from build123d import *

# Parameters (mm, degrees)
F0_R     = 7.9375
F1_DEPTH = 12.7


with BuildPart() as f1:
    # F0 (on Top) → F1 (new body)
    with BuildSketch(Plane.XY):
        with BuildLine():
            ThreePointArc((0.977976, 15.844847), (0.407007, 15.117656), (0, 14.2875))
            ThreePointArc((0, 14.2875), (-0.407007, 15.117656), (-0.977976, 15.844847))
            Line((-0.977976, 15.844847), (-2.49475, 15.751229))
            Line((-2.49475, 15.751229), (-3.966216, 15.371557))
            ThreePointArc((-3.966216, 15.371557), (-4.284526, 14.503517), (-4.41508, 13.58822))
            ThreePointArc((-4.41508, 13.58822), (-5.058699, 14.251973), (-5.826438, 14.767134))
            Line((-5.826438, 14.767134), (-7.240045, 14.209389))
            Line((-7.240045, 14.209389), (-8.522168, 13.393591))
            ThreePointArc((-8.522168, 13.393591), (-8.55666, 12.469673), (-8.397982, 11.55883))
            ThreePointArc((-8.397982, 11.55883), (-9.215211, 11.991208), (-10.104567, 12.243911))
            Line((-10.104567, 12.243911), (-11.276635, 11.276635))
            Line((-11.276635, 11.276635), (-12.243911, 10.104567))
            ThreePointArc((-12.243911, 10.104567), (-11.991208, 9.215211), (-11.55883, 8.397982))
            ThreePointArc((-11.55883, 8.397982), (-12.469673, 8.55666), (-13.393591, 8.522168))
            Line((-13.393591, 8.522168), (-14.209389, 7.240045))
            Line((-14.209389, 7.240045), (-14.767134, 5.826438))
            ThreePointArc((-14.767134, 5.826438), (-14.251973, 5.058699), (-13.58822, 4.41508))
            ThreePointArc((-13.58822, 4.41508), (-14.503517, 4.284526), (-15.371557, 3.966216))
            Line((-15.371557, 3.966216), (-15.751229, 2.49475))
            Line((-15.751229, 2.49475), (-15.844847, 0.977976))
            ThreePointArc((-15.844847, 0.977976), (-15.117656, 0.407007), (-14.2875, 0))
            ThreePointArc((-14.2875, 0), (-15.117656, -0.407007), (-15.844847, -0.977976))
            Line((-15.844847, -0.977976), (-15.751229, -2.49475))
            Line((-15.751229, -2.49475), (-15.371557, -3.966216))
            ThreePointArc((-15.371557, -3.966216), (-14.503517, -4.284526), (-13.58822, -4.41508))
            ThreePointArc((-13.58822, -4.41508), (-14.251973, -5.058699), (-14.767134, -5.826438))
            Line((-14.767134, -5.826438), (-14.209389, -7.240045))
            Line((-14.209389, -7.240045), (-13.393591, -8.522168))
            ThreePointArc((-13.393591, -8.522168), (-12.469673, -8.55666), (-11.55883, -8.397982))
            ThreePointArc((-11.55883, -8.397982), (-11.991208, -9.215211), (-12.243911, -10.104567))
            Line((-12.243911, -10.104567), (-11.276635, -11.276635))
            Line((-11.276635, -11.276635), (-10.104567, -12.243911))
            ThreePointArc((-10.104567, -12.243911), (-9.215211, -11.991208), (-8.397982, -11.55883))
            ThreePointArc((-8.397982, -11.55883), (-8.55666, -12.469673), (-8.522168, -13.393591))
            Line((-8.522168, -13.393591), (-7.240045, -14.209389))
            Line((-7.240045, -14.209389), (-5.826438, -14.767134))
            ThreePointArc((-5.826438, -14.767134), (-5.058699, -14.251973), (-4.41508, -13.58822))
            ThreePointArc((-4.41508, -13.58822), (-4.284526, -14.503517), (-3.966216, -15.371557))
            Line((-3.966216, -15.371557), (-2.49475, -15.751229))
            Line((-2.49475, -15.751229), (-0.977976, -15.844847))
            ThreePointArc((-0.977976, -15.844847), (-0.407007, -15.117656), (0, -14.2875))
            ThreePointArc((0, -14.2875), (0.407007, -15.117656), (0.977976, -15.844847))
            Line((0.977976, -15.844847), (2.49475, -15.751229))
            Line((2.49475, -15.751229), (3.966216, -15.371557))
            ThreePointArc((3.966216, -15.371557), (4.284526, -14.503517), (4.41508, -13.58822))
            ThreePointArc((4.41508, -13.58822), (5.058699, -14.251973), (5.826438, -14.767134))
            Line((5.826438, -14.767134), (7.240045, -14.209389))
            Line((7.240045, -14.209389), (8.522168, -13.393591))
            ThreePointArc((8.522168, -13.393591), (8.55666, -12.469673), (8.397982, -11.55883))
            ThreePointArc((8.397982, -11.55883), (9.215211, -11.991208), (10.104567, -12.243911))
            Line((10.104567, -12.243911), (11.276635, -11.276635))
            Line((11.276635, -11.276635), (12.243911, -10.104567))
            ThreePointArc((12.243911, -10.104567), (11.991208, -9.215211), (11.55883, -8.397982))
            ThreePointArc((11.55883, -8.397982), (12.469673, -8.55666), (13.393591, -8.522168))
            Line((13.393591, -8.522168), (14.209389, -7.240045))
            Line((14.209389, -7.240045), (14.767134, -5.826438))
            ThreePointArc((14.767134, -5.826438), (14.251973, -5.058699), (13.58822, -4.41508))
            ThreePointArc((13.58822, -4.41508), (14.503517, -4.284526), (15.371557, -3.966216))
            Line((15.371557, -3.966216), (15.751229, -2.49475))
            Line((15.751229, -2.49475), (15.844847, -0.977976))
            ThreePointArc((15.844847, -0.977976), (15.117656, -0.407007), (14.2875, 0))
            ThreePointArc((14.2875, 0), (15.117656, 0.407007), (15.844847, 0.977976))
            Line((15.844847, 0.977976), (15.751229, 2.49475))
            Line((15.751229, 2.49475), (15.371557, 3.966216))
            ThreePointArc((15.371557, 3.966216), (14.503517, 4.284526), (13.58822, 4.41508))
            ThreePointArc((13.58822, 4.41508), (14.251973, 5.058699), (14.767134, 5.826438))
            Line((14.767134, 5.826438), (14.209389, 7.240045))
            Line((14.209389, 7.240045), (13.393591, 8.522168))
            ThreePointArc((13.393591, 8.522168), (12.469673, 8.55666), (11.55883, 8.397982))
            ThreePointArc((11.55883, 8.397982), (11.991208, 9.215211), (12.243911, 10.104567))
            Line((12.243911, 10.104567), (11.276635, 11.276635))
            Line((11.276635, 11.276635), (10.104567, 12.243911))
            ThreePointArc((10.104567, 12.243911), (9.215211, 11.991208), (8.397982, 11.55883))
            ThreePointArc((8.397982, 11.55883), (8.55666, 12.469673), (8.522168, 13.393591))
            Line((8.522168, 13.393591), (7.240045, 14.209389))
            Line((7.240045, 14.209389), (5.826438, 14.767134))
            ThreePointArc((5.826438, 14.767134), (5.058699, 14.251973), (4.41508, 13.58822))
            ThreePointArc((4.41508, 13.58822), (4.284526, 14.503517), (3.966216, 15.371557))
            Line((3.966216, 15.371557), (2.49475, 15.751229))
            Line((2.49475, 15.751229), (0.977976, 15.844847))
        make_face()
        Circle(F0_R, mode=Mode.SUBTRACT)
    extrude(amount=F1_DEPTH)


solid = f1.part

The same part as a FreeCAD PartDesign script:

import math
import FreeCAD as App
import Part
import Sketcher

V = App.Vector
Q = App.Units.Quantity

doc = App.newDocument("Part")
body = doc.addObject("PartDesign::Body", "Body")

# Sketch on XY plane
sketch1 = doc.addObject("Sketcher::SketchObject", "Sketch")
body.addObject(sketch1)
sketch1.AttachmentSupport = (doc.XY_Plane, [""])
sketch1.MapMode = "FlatFace"
sketch1.addGeometry(Part.ArcOfCircle(Part.Circle(V(4.145994, 12.769662, 0), V(0, 0, 1), 4.415099), math.radians(135.851903), math.radians(159.892456)), False)
sketch1.addGeometry(Part.ArcOfCircle(Part.Circle(V(-4.145994, 12.769662, 0), V(0, 0, 1), 4.415099), math.radians(20.107544), math.radians(44.148097)), False)
sketch1.addGeometry(Part.LineSegment(V(-0.977976, 15.844847, 0), V(-2.49475, 15.751229, 0)), False)
sketch1.addGeometry(Part.LineSegment(V(-2.49475, 15.751229, 0), V(-3.966216, 15.371557, 0)), False)
sketch1.addGeometry(Part.ArcOfCircle(Part.Circle(V(-0.002976, 13.425856, 0), V(0, 0, 1), 4.415091), math.radians(153.851873), math.radians(177.892483)), False)
sketch1.addGeometry(Part.ArcOfCircle(Part.Circle(V(-7.889118, 10.863486, 0), V(0, 0, 1), 4.415101), math.radians(38.107557), math.radians(62.148109)), False)
sketch1.addGeometry(Part.LineSegment(V(-5.826438, 14.767134, 0), V(-7.240045, 14.209389, 0)), False)
sketch1.addGeometry(Part.LineSegment(V(-7.240045, 14.209389, 0), V(-8.522168, 13.393591, 0)), False)
sketch1.addGeometry(Part.ArcOfCircle(Part.Circle(V(-4.151651, 12.767827, 0), V(0, 0, 1), 4.415088), math.radians(171.85185), math.radians(195.89248)), False)
sketch1.addGeometry(Part.ArcOfCircle(Part.Circle(V(-10.86, 7.893923, 0), V(0, 0, 1), 4.415097), math.radians(56.107516), math.radians(80.14809)), False)
sketch1.addGeometry(Part.LineSegment(V(-10.104567, 12.243911, 0), V(-11.276635, 11.276635, 0)), False)
sketch1.addGeometry(Part.LineSegment(V(-11.276635, 11.276635, 0), V(-12.243911, 10.104567, 0)), False)
sketch1.addGeometry(Part.ArcOfCircle(Part.Circle(V(-7.893923, 10.86, 0), V(0, 0, 1), 4.415097), math.radians(-170.14809), math.radians(-146.107516)), False)
sketch1.addGeometry(Part.ArcOfCircle(Part.Circle(V(-12.767827, 4.151651, 0), V(0, 0, 1), 4.415088), math.radians(74.10752), math.radians(98.14815)), False)
sketch1.addGeometry(Part.LineSegment(V(-13.393591, 8.522168, 0), V(-14.209389, 7.240045, 0)), False)
sketch1.addGeometry(Part.LineSegment(V(-14.209389, 7.240045, 0), V(-14.767134, 5.826438, 0)), False)
sketch1.addGeometry(Part.ArcOfCircle(Part.Circle(V(-10.863486, 7.889118, 0), V(0, 0, 1), 4.415101), math.radians(-152.148109), math.radians(-128.107557)), False)
sketch1.addGeometry(Part.ArcOfCircle(Part.Circle(V(-13.425856, 0.002976, 0), V(0, 0, 1), 4.415091), math.radians(92.107517), math.radians(116.148127)), False)
sketch1.addGeometry(Part.LineSegment(V(-15.371557, 3.966216, 0), V(-15.751229, 2.49475, 0)), False)
sketch1.addGeometry(Part.LineSegment(V(-15.751229, 2.49475, 0), V(-15.844847, 0.977976, 0)), False)
sketch1.addGeometry(Part.ArcOfCircle(Part.Circle(V(-12.769662, 4.145994, 0), V(0, 0, 1), 4.415099), math.radians(-134.148097), math.radians(-110.107544)), False)
sketch1.addGeometry(Part.ArcOfCircle(Part.Circle(V(-12.769662, -4.145994, 0), V(0, 0, 1), 4.415099), math.radians(110.107544), math.radians(134.148097)), False)
sketch1.addGeometry(Part.LineSegment(V(-15.844847, -0.977976, 0), V(-15.751229, -2.49475, 0)), False)
sketch1.addGeometry(Part.LineSegment(V(-15.751229, -2.49475, 0), V(-15.371557, -3.966216, 0)), False)
sketch1.addGeometry(Part.ArcOfCircle(Part.Circle(V(-13.425856, -0.002976, 0), V(0, 0, 1), 4.415091), math.radians(-116.148127), math.radians(-92.107517)), False)
sketch1.addGeometry(Part.ArcOfCircle(Part.Circle(V(-10.863486, -7.889118, 0), V(0, 0, 1), 4.415101), math.radians(128.107557), math.radians(152.148109)), False)
sketch1.addGeometry(Part.LineSegment(V(-14.767134, -5.826438, 0), V(-14.209389, -7.240045, 0)), False)
sketch1.addGeometry(Part.LineSegment(V(-14.209389, -7.240045, 0), V(-13.393591, -8.522168, 0)), False)
sketch1.addGeometry(Part.ArcOfCircle(Part.Circle(V(-12.767827, -4.151651, 0), V(0, 0, 1), 4.415088), math.radians(-98.14815), math.radians(-74.10752)), False)
sketch1.addGeometry(Part.ArcOfCircle(Part.Circle(V(-7.893923, -10.86, 0), V(0, 0, 1), 4.415097), math.radians(146.107516), math.radians(170.14809)), False)
sketch1.addGeometry(Part.LineSegment(V(-12.243911, -10.104567, 0), V(-11.276635, -11.276635, 0)), False)
sketch1.addGeometry(Part.LineSegment(V(-11.276635, -11.276635, 0), V(-10.104567, -12.243911, 0)), False)
sketch1.addGeometry(Part.ArcOfCircle(Part.Circle(V(-10.86, -7.893923, 0), V(0, 0, 1), 4.415097), math.radians(-80.14809), math.radians(-56.107516)), False)
sketch1.addGeometry(Part.ArcOfCircle(Part.Circle(V(-4.151651, -12.767827, 0), V(0, 0, 1), 4.415088), math.radians(164.10752), math.radians(188.14815)), False)
sketch1.addGeometry(Part.LineSegment(V(-8.522168, -13.393591, 0), V(-7.240045, -14.209389, 0)), False)
sketch1.addGeometry(Part.LineSegment(V(-7.240045, -14.209389, 0), V(-5.826438, -14.767134, 0)), False)
sketch1.addGeometry(Part.ArcOfCircle(Part.Circle(V(-7.889118, -10.863486, 0), V(0, 0, 1), 4.415101), math.radians(-62.148109), math.radians(-38.107557)), False)
sketch1.addGeometry(Part.ArcOfCircle(Part.Circle(V(-0.002976, -13.425856, 0), V(0, 0, 1), 4.415091), math.radians(-177.892483), math.radians(-153.851873)), False)
sketch1.addGeometry(Part.LineSegment(V(-3.966216, -15.371557, 0), V(-2.49475, -15.751229, 0)), False)
sketch1.addGeometry(Part.LineSegment(V(-2.49475, -15.751229, 0), V(-0.977976, -15.844847, 0)), False)
sketch1.addGeometry(Part.ArcOfCircle(Part.Circle(V(-4.145994, -12.769662, 0), V(0, 0, 1), 4.415099), math.radians(-44.148097), math.radians(-20.107544)), False)
sketch1.addGeometry(Part.ArcOfCircle(Part.Circle(V(4.145994, -12.769662, 0), V(0, 0, 1), 4.415099), math.radians(-159.892456), math.radians(-135.851903)), False)
sketch1.addGeometry(Part.LineSegment(V(0.977976, -15.844847, 0), V(2.49475, -15.751229, 0)), False)
sketch1.addGeometry(Part.LineSegment(V(2.49475, -15.751229, 0), V(3.966216, -15.371557, 0)), False)
sketch1.addGeometry(Part.ArcOfCircle(Part.Circle(V(0.002976, -13.425856, 0), V(0, 0, 1), 4.415091), math.radians(-26.148127), math.radians(-2.107517)), False)
sketch1.addGeometry(Part.ArcOfCircle(Part.Circle(V(7.889118, -10.863486, 0), V(0, 0, 1), 4.415101), math.radians(-141.892443), math.radians(-117.851891)), False)
sketch1.addGeometry(Part.LineSegment(V(5.826438, -14.767134, 0), V(7.240045, -14.209389, 0)), False)
sketch1.addGeometry(Part.LineSegment(V(7.240045, -14.209389, 0), V(8.522168, -13.393591, 0)), False)
sketch1.addGeometry(Part.ArcOfCircle(Part.Circle(V(4.151651, -12.767827, 0), V(0, 0, 1), 4.415088), math.radians(-8.14815), math.radians(15.89248)), False)
sketch1.addGeometry(Part.ArcOfCircle(Part.Circle(V(10.86, -7.893923, 0), V(0, 0, 1), 4.415097), math.radians(-123.892484), math.radians(-99.85191)), False)
sketch1.addGeometry(Part.LineSegment(V(10.104567, -12.243911, 0), V(11.276635, -11.276635, 0)), False)
sketch1.addGeometry(Part.LineSegment(V(11.276635, -11.276635, 0), V(12.243911, -10.104567, 0)), False)
sketch1.addGeometry(Part.ArcOfCircle(Part.Circle(V(7.893923, -10.86, 0), V(0, 0, 1), 4.415097), math.radians(9.85191), math.radians(33.892484)), False)
sketch1.addGeometry(Part.ArcOfCircle(Part.Circle(V(12.767827, -4.151651, 0), V(0, 0, 1), 4.415088), math.radians(-105.89248), math.radians(-81.85185)), False)
sketch1.addGeometry(Part.LineSegment(V(13.393591, -8.522168, 0), V(14.209389, -7.240045, 0)), False)
sketch1.addGeometry(Part.LineSegment(V(14.209389, -7.240045, 0), V(14.767134, -5.826438, 0)), False)
sketch1.addGeometry(Part.ArcOfCircle(Part.Circle(V(10.863486, -7.889118, 0), V(0, 0, 1), 4.415101), math.radians(27.851891), math.radians(51.892443)), False)
sketch1.addGeometry(Part.ArcOfCircle(Part.Circle(V(13.425856, -0.002976, 0), V(0, 0, 1), 4.415091), math.radians(-87.892483), math.radians(-63.851873)), False)
sketch1.addGeometry(Part.LineSegment(V(15.371557, -3.966216, 0), V(15.751229, -2.49475, 0)), False)
sketch1.addGeometry(Part.LineSegment(V(15.751229, -2.49475, 0), V(15.844847, -0.977976, 0)), False)
sketch1.addGeometry(Part.ArcOfCircle(Part.Circle(V(12.769662, -4.145994, 0), V(0, 0, 1), 4.415099), math.radians(45.851903), math.radians(69.892456)), False)
sketch1.addGeometry(Part.ArcOfCircle(Part.Circle(V(12.769662, 4.145994, 0), V(0, 0, 1), 4.415099), math.radians(-69.892456), math.radians(-45.851903)), False)
sketch1.addGeometry(Part.LineSegment(V(15.844847, 0.977976, 0), V(15.751229, 2.49475, 0)), False)
sketch1.addGeometry(Part.LineSegment(V(15.751229, 2.49475, 0), V(15.371557, 3.966216, 0)), False)
sketch1.addGeometry(Part.ArcOfCircle(Part.Circle(V(13.425856, 0.002976, 0), V(0, 0, 1), 4.415091), math.radians(63.851873), math.radians(87.892483)), False)
sketch1.addGeometry(Part.ArcOfCircle(Part.Circle(V(10.863486, 7.889118, 0), V(0, 0, 1), 4.415101), math.radians(-51.892443), math.radians(-27.851891)), False)
sketch1.addGeometry(Part.LineSegment(V(14.767134, 5.826438, 0), V(14.209389, 7.240045, 0)), False)
sketch1.addGeometry(Part.LineSegment(V(14.209389, 7.240045, 0), V(13.393591, 8.522168, 0)), False)
sketch1.addGeometry(Part.ArcOfCircle(Part.Circle(V(12.767827, 4.151651, 0), V(0, 0, 1), 4.415088), math.radians(81.85185), math.radians(105.89248)), False)
sketch1.addGeometry(Part.ArcOfCircle(Part.Circle(V(7.893923, 10.86, 0), V(0, 0, 1), 4.415097), math.radians(-33.892484), math.radians(-9.85191)), False)
sketch1.addGeometry(Part.LineSegment(V(12.243911, 10.104567, 0), V(11.276635, 11.276635, 0)), False)
sketch1.addGeometry(Part.LineSegment(V(11.276635, 11.276635, 0), V(10.104567, 12.243911, 0)), False)
sketch1.addGeometry(Part.ArcOfCircle(Part.Circle(V(10.86, 7.893923, 0), V(0, 0, 1), 4.415097), math.radians(99.85191), math.radians(123.892484)), False)
sketch1.addGeometry(Part.ArcOfCircle(Part.Circle(V(4.151651, 12.767827, 0), V(0, 0, 1), 4.415088), math.radians(-15.89248), math.radians(8.14815)), False)
sketch1.addGeometry(Part.LineSegment(V(8.522168, 13.393591, 0), V(7.240045, 14.209389, 0)), False)
sketch1.addGeometry(Part.LineSegment(V(7.240045, 14.209389, 0), V(5.826438, 14.767134, 0)), False)
sketch1.addGeometry(Part.ArcOfCircle(Part.Circle(V(7.889118, 10.863486, 0), V(0, 0, 1), 4.415101), math.radians(117.851891), math.radians(141.892443)), False)
sketch1.addGeometry(Part.ArcOfCircle(Part.Circle(V(0.002976, 13.425856, 0), V(0, 0, 1), 4.415091), math.radians(2.107517), math.radians(26.148127)), False)
sketch1.addGeometry(Part.LineSegment(V(3.966216, 15.371557, 0), V(2.49475, 15.751229, 0)), False)
sketch1.addGeometry(Part.LineSegment(V(2.49475, 15.751229, 0), V(0.977976, 15.844847, 0)), False)
sketch1.addGeometry(Part.Circle(V(0, 0, 0), V(0, 0, 1), 7.9375), False)
sketch1.addConstraint(Sketcher.Constraint("Coincident", 0, 2, 1, 1))
sketch1.addConstraint(Sketcher.Constraint("Coincident", 1, 2, 2, 1))
sketch1.addConstraint(Sketcher.Constraint("Coincident", 2, 2, 3, 1))
sketch1.addConstraint(Sketcher.Constraint("Coincident", 3, 2, 4, 1))
sketch1.addConstraint(Sketcher.Constraint("Coincident", 4, 2, 5, 1))
sketch1.addConstraint(Sketcher.Constraint("Coincident", 5, 2, 6, 1))
sketch1.addConstraint(Sketcher.Constraint("Coincident", 6, 2, 7, 1))
sketch1.addConstraint(Sketcher.Constraint("Coincident", 7, 2, 8, 1))
sketch1.addConstraint(Sketcher.Constraint("Coincident", 8, 2, 9, 1))
sketch1.addConstraint(Sketcher.Constraint("Coincident", 9, 2, 10, 1))
sketch1.addConstraint(Sketcher.Constraint("Coincident", 10, 2, 11, 1))
sketch1.addConstraint(Sketcher.Constraint("Coincident", 11, 2, 12, 1))
sketch1.addConstraint(Sketcher.Constraint("Coincident", 12, 2, 13, 1))
sketch1.addConstraint(Sketcher.Constraint("Coincident", 13, 2, 14, 1))
sketch1.addConstraint(Sketcher.Constraint("Coincident", 14, 2, 15, 1))
sketch1.addConstraint(Sketcher.Constraint("Coincident", 15, 2, 16, 1))
sketch1.addConstraint(Sketcher.Constraint("Coincident", 16, 2, 17, 1))
sketch1.addConstraint(Sketcher.Constraint("Coincident", 17, 2, 18, 1))
sketch1.addConstraint(Sketcher.Constraint("Coincident", 18, 2, 19, 1))
sketch1.addConstraint(Sketcher.Constraint("Coincident", 19, 2, 20, 1))
sketch1.addConstraint(Sketcher.Constraint("Coincident", 20, 2, 21, 1))
sketch1.addConstraint(Sketcher.Constraint("Coincident", 21, 2, 22, 1))
sketch1.addConstraint(Sketcher.Constraint("Coincident", 22, 2, 23, 1))
sketch1.addConstraint(Sketcher.Constraint("Coincident", 23, 2, 24, 1))
sketch1.addConstraint(Sketcher.Constraint("Coincident", 24, 2, 25, 1))
sketch1.addConstraint(Sketcher.Constraint("Coincident", 25, 2, 26, 1))
sketch1.addConstraint(Sketcher.Constraint("Coincident", 26, 2, 27, 1))
sketch1.addConstraint(Sketcher.Constraint("Coincident", 27, 2, 28, 1))
sketch1.addConstraint(Sketcher.Constraint("Coincident", 28, 2, 29, 1))
sketch1.addConstraint(Sketcher.Constraint("Coincident", 29, 2, 30, 1))
sketch1.addConstraint(Sketcher.Constraint("Coincident", 30, 2, 31, 1))
sketch1.addConstraint(Sketcher.Constraint("Coincident", 31, 2, 32, 1))
sketch1.addConstraint(Sketcher.Constraint("Coincident", 32, 2, 33, 1))
sketch1.addConstraint(Sketcher.Constraint("Coincident", 33, 2, 34, 1))
sketch1.addConstraint(Sketcher.Constraint("Coincident", 34, 2, 35, 1))
sketch1.addConstraint(Sketcher.Constraint("Coincident", 35, 2, 36, 1))
sketch1.addConstraint(Sketcher.Constraint("Coincident", 36, 2, 37, 1))
sketch1.addConstraint(Sketcher.Constraint("Coincident", 37, 2, 38, 1))
sketch1.addConstraint(Sketcher.Constraint("Coincident", 38, 2, 39, 1))
sketch1.addConstraint(Sketcher.Constraint("Coincident", 39, 2, 40, 1))
sketch1.addConstraint(Sketcher.Constraint("Coincident", 40, 2, 41, 1))
sketch1.addConstraint(Sketcher.Constraint("Coincident", 41, 2, 42, 1))
sketch1.addConstraint(Sketcher.Constraint("Coincident", 42, 2, 43, 1))
sketch1.addConstraint(Sketcher.Constraint("Coincident", 43, 2, 44, 1))
sketch1.addConstraint(Sketcher.Constraint("Coincident", 44, 2, 45, 1))
sketch1.addConstraint(Sketcher.Constraint("Coincident", 45, 2, 46, 1))
sketch1.addConstraint(Sketcher.Constraint("Coincident", 46, 2, 47, 1))
sketch1.addConstraint(Sketcher.Constraint("Coincident", 47, 2, 48, 1))
sketch1.addConstraint(Sketcher.Constraint("Coincident", 48, 2, 49, 1))
sketch1.addConstraint(Sketcher.Constraint("Coincident", 49, 2, 50, 1))
sketch1.addConstraint(Sketcher.Constraint("Coincident", 50, 2, 51, 1))
sketch1.addConstraint(Sketcher.Constraint("Coincident", 51, 2, 52, 1))
sketch1.addConstraint(Sketcher.Constraint("Coincident", 52, 2, 53, 1))
sketch1.addConstraint(Sketcher.Constraint("Coincident", 53, 2, 54, 1))
sketch1.addConstraint(Sketcher.Constraint("Coincident", 54, 2, 55, 1))
sketch1.addConstraint(Sketcher.Constraint("Coincident", 55, 2, 56, 1))
sketch1.addConstraint(Sketcher.Constraint("Coincident", 56, 2, 57, 1))
sketch1.addConstraint(Sketcher.Constraint("Coincident", 57, 2, 58, 1))
sketch1.addConstraint(Sketcher.Constraint("Coincident", 58, 2, 59, 1))
sketch1.addConstraint(Sketcher.Constraint("Coincident", 59, 2, 60, 1))
sketch1.addConstraint(Sketcher.Constraint("Coincident", 60, 2, 61, 1))
sketch1.addConstraint(Sketcher.Constraint("Coincident", 61, 2, 62, 1))
sketch1.addConstraint(Sketcher.Constraint("Coincident", 62, 2, 63, 1))
sketch1.addConstraint(Sketcher.Constraint("Coincident", 63, 2, 64, 1))
sketch1.addConstraint(Sketcher.Constraint("Coincident", 64, 2, 65, 1))
sketch1.addConstraint(Sketcher.Constraint("Coincident", 65, 2, 66, 1))
sketch1.addConstraint(Sketcher.Constraint("Coincident", 66, 2, 67, 1))
sketch1.addConstraint(Sketcher.Constraint("Coincident", 67, 2, 68, 1))
sketch1.addConstraint(Sketcher.Constraint("Coincident", 68, 2, 69, 1))
sketch1.addConstraint(Sketcher.Constraint("Coincident", 69, 2, 70, 1))
sketch1.addConstraint(Sketcher.Constraint("Coincident", 70, 2, 71, 1))
sketch1.addConstraint(Sketcher.Constraint("Coincident", 71, 2, 72, 1))
sketch1.addConstraint(Sketcher.Constraint("Coincident", 72, 2, 73, 1))
sketch1.addConstraint(Sketcher.Constraint("Coincident", 73, 2, 74, 1))
sketch1.addConstraint(Sketcher.Constraint("Coincident", 74, 2, 75, 1))
sketch1.addConstraint(Sketcher.Constraint("Coincident", 75, 2, 76, 1))
sketch1.addConstraint(Sketcher.Constraint("Coincident", 76, 2, 77, 1))
sketch1.addConstraint(Sketcher.Constraint("Coincident", 77, 2, 78, 1))
sketch1.addConstraint(Sketcher.Constraint("Coincident", 78, 2, 79, 1))
sketch1.addConstraint(Sketcher.Constraint("Coincident", 79, 2, 0, 1))
sketch1.addConstraint(Sketcher.Constraint("Coincident", 80, 3, -1, 1))
sketch1.addConstraint(Sketcher.Constraint("PointOnObject", 0, 2, -2))
sketch1.addConstraint(Sketcher.Constraint("PointOnObject", 20, 2, -1))
sketch1.addConstraint(Sketcher.Constraint("PointOnObject", 40, 2, -2))
sketch1.addConstraint(Sketcher.Constraint("PointOnObject", 60, 2, -1))
sketch1.addConstraint(Sketcher.Constraint("Diameter", 80, Q("0.625 in")))
sketch1.addConstraint(Sketcher.Constraint("Radius", 0, 4.415099))
sketch1.addConstraint(Sketcher.Constraint("Radius", 1, 4.415099))
sketch1.addConstraint(Sketcher.Constraint("Radius", 5, 4.415101))
sketch1.addConstraint(Sketcher.Constraint("Radius", 16, 4.415101))
sketch1.addConstraint(Sketcher.Constraint("Radius", 20, 4.415099))
sketch1.addConstraint(Sketcher.Constraint("Radius", 21, 4.415099))
sketch1.addConstraint(Sketcher.Constraint("Radius", 25, 4.415101))
sketch1.addConstraint(Sketcher.Constraint("Radius", 36, 4.415101))
sketch1.addConstraint(Sketcher.Constraint("Radius", 40, 4.415099))
sketch1.addConstraint(Sketcher.Constraint("Radius", 41, 4.415099))
sketch1.addConstraint(Sketcher.Constraint("Radius", 45, 4.415101))
sketch1.addConstraint(Sketcher.Constraint("Radius", 56, 4.415101))
sketch1.addConstraint(Sketcher.Constraint("Radius", 60, 4.415099))
sketch1.addConstraint(Sketcher.Constraint("Radius", 61, 4.415099))
sketch1.addConstraint(Sketcher.Constraint("Radius", 65, 4.415101))
sketch1.addConstraint(Sketcher.Constraint("Radius", 76, 4.415101))
sketch1.addConstraint(Sketcher.Constraint("DistanceY", -1, 1, 0, 2, Q("0.5625 in")))
sketch1.addConstraint(Sketcher.Constraint("DistanceX", 20, 2, -1, 1, Q("0.5625 in")))
sketch1.addConstraint(Sketcher.Constraint("DistanceY", 40, 2, -1, 1, Q("0.5625 in")))
sketch1.addConstraint(Sketcher.Constraint("DistanceX", -1, 1, 60, 2, Q("0.5625 in")))
sketch1.addConstraint(Sketcher.Constraint("Radius", 4, 4.415091))
sketch1.addConstraint(Sketcher.Constraint("Radius", 17, 4.415091))
sketch1.addConstraint(Sketcher.Constraint("Radius", 24, 4.415091))
sketch1.addConstraint(Sketcher.Constraint("Radius", 37, 4.415091))
sketch1.addConstraint(Sketcher.Constraint("Radius", 44, 4.415091))
sketch1.addConstraint(Sketcher.Constraint("Radius", 57, 4.415091))
sketch1.addConstraint(Sketcher.Constraint("Radius", 64, 4.415091))
sketch1.addConstraint(Sketcher.Constraint("Radius", 77, 4.415091))
sketch1.addConstraint(Sketcher.Constraint("Radius", 8, 4.415088))
sketch1.addConstraint(Sketcher.Constraint("Radius", 9, 4.415097))
sketch1.addConstraint(Sketcher.Constraint("Radius", 12, 4.415097))
sketch1.addConstraint(Sketcher.Constraint("Radius", 13, 4.415088))
sketch1.addConstraint(Sketcher.Constraint("Radius", 28, 4.415088))
sketch1.addConstraint(Sketcher.Constraint("Radius", 29, 4.415097))
sketch1.addConstraint(Sketcher.Constraint("Radius", 32, 4.415097))
sketch1.addConstraint(Sketcher.Constraint("Radius", 33, 4.415088))
sketch1.addConstraint(Sketcher.Constraint("Radius", 48, 4.415088))
sketch1.addConstraint(Sketcher.Constraint("Radius", 49, 4.415097))
sketch1.addConstraint(Sketcher.Constraint("Radius", 52, 4.415097))
sketch1.addConstraint(Sketcher.Constraint("Radius", 53, 4.415088))
sketch1.addConstraint(Sketcher.Constraint("Radius", 68, 4.415088))
sketch1.addConstraint(Sketcher.Constraint("Radius", 69, 4.415097))
sketch1.addConstraint(Sketcher.Constraint("Radius", 72, 4.415097))
sketch1.addConstraint(Sketcher.Constraint("Radius", 73, 4.415088))
sketch1.addConstraint(Sketcher.Constraint("DistanceX", 9, 3, -1, 1, 10.86))
sketch1.addConstraint(Sketcher.Constraint("DistanceY", -1, 1, 12, 3, 10.86))
sketch1.addConstraint(Sketcher.Constraint("DistanceY", 29, 3, -1, 1, 10.86))
sketch1.addConstraint(Sketcher.Constraint("DistanceX", 32, 3, -1, 1, 10.86))
sketch1.addConstraint(Sketcher.Constraint("DistanceX", -1, 1, 49, 3, 10.86))
sketch1.addConstraint(Sketcher.Constraint("DistanceY", 52, 3, -1, 1, 10.86))
sketch1.addConstraint(Sketcher.Constraint("DistanceY", -1, 1, 69, 3, 10.86))
sketch1.addConstraint(Sketcher.Constraint("DistanceX", -1, 1, 72, 3, 10.86))
sketch1.addConstraint(Sketcher.Constraint("Distance", 2, 1.51966))
sketch1.addConstraint(Sketcher.Constraint("Distance", 3, 1.519659))
sketch1.addConstraint(Sketcher.Constraint("Distance", 6, 1.519659))
sketch1.addConstraint(Sketcher.Constraint("Distance", 7, 1.51966))
sketch1.addConstraint(Sketcher.Constraint("Distance", 10, 1.51966))
sketch1.addConstraint(Sketcher.Constraint("Distance", 11, 1.51966))
sketch1.addConstraint(Sketcher.Constraint("Distance", 14, 1.51966))
sketch1.addConstraint(Sketcher.Constraint("Distance", 15, 1.519659))
sketch1.addConstraint(Sketcher.Constraint("Distance", 18, 1.519659))
sketch1.addConstraint(Sketcher.Constraint("Distance", 19, 1.51966))
sketch1.addConstraint(Sketcher.Constraint("Distance", 22, 1.51966))
sketch1.addConstraint(Sketcher.Constraint("Distance", 23, 1.519659))
sketch1.addConstraint(Sketcher.Constraint("Distance", 26, 1.519659))
sketch1.addConstraint(Sketcher.Constraint("Distance", 27, 1.51966))
sketch1.addConstraint(Sketcher.Constraint("Distance", 30, 1.51966))
sketch1.addConstraint(Sketcher.Constraint("Distance", 31, 1.51966))
sketch1.addConstraint(Sketcher.Constraint("Distance", 34, 1.51966))
sketch1.addConstraint(Sketcher.Constraint("Distance", 35, 1.519659))
sketch1.addConstraint(Sketcher.Constraint("Distance", 38, 1.519659))
sketch1.addConstraint(Sketcher.Constraint("Distance", 39, 1.51966))
sketch1.addConstraint(Sketcher.Constraint("Distance", 42, 1.51966))
sketch1.addConstraint(Sketcher.Constraint("Distance", 43, 1.519659))
sketch1.addConstraint(Sketcher.Constraint("Distance", 46, 1.519659))
sketch1.addConstraint(Sketcher.Constraint("Distance", 47, 1.51966))
sketch1.addConstraint(Sketcher.Constraint("Distance", 50, 1.51966))
sketch1.addConstraint(Sketcher.Constraint("Distance", 51, 1.51966))
sketch1.addConstraint(Sketcher.Constraint("Distance", 54, 1.51966))
sketch1.addConstraint(Sketcher.Constraint("Distance", 55, 1.519659))
sketch1.addConstraint(Sketcher.Constraint("Distance", 58, 1.519659))
sketch1.addConstraint(Sketcher.Constraint("Distance", 59, 1.51966))
sketch1.addConstraint(Sketcher.Constraint("Distance", 62, 1.51966))
sketch1.addConstraint(Sketcher.Constraint("Distance", 63, 1.519659))
sketch1.addConstraint(Sketcher.Constraint("Distance", 66, 1.519659))
sketch1.addConstraint(Sketcher.Constraint("Distance", 67, 1.51966))
sketch1.addConstraint(Sketcher.Constraint("Distance", 70, 1.51966))
sketch1.addConstraint(Sketcher.Constraint("Distance", 71, 1.51966))
sketch1.addConstraint(Sketcher.Constraint("Distance", 74, 1.51966))
sketch1.addConstraint(Sketcher.Constraint("Distance", 75, 1.519659))
sketch1.addConstraint(Sketcher.Constraint("Distance", 78, 1.519659))
sketch1.addConstraint(Sketcher.Constraint("Distance", 79, 1.51966))
sketch1.addConstraint(Sketcher.Constraint("DistanceX", 5, 3, -1, 1, 7.889118))
sketch1.addConstraint(Sketcher.Constraint("DistanceX", 8, 3, -1, 1, 4.151651))
sketch1.addConstraint(Sketcher.Constraint("DistanceY", -1, 1, 13, 3, 4.151651))
sketch1.addConstraint(Sketcher.Constraint("DistanceY", -1, 1, 16, 3, 7.889118))
sketch1.addConstraint(Sketcher.Constraint("DistanceY", 25, 3, -1, 1, 7.889118))
sketch1.addConstraint(Sketcher.Constraint("DistanceY", 28, 3, -1, 1, 4.151651))
sketch1.addConstraint(Sketcher.Constraint("DistanceX", 33, 3, -1, 1, 4.151651))
sketch1.addConstraint(Sketcher.Constraint("DistanceX", 36, 3, -1, 1, 7.889118))
sketch1.addConstraint(Sketcher.Constraint("DistanceX", -1, 1, 45, 3, 7.889118))
sketch1.addConstraint(Sketcher.Constraint("DistanceX", -1, 1, 48, 3, 4.151651))
sketch1.addConstraint(Sketcher.Constraint("DistanceY", 53, 3, -1, 1, 4.151651))
sketch1.addConstraint(Sketcher.Constraint("DistanceY", 56, 3, -1, 1, 7.889118))
sketch1.addConstraint(Sketcher.Constraint("DistanceY", -1, 1, 65, 3, 7.889118))
sketch1.addConstraint(Sketcher.Constraint("DistanceY", -1, 1, 68, 3, 4.151651))
sketch1.addConstraint(Sketcher.Constraint("DistanceX", -1, 1, 73, 3, 4.151651))
sketch1.addConstraint(Sketcher.Constraint("DistanceX", -1, 1, 76, 3, 7.889118))
sketch1.addConstraint(Sketcher.Constraint("DistanceX", 2, 2, -1, 1, 2.49475))
sketch1.addConstraint(Sketcher.Constraint("DistanceY", -1, 1, 2, 2, 15.751229))
sketch1.addConstraint(Sketcher.Constraint("DistanceX", 4, 2, -1, 1, 4.41508))
sketch1.addConstraint(Sketcher.Constraint("DistanceY", -1, 1, 4, 2, 13.58822))
sketch1.addConstraint(Sketcher.Constraint("DistanceX", 5, 2, -1, 1, 5.826438))
sketch1.addConstraint(Sketcher.Constraint("DistanceY", -1, 1, 6, 2, 14.209389))
sketch1.addConstraint(Sketcher.Constraint("DistanceX", 7, 2, -1, 1, 8.522168))
sketch1.addConstraint(Sketcher.Constraint("DistanceY", -1, 1, 8, 2, 11.55883))
sketch1.addConstraint(Sketcher.Constraint("DistanceY", -1, 1, 9, 2, 12.243911))
sketch1.addConstraint(Sketcher.Constraint("DistanceX", 11, 2, -1, 1, 12.243911))
sketch1.addConstraint(Sketcher.Constraint("DistanceX", 12, 2, -1, 1, 11.55883))
sketch1.addConstraint(Sketcher.Constraint("DistanceY", -1, 1, 12, 2, 8.397982))
sketch1.addConstraint(Sketcher.Constraint("DistanceX", 13, 2, -1, 1, 13.393591))
sketch1.addConstraint(Sketcher.Constraint("DistanceX", 14, 2, -1, 1, 14.209389))
sketch1.addConstraint(Sketcher.Constraint("DistanceX", 16, 2, -1, 1, 13.58822))
sketch1.addConstraint(Sketcher.Constraint("DistanceY", -1, 1, 16, 2, 4.41508))
sketch1.addConstraint(Sketcher.Constraint("DistanceX", 18, 2, -1, 1, 15.751229))
sketch1.addConstraint(Sketcher.Constraint("DistanceY", -1, 1, 18, 2, 2.49475))
sketch1.addConstraint(Sketcher.Constraint("DistanceX", 22, 2, -1, 1, 15.751229))
sketch1.addConstraint(Sketcher.Constraint("DistanceY", 22, 2, -1, 1, 2.49475))
sketch1.addConstraint(Sketcher.Constraint("DistanceX", 24, 2, -1, 1, 13.58822))
sketch1.addConstraint(Sketcher.Constraint("DistanceY", 24, 2, -1, 1, 4.41508))
sketch1.addConstraint(Sketcher.Constraint("DistanceY", 25, 2, -1, 1, 5.826438))
sketch1.addConstraint(Sketcher.Constraint("DistanceX", 26, 2, -1, 1, 14.209389))
sketch1.addConstraint(Sketcher.Constraint("DistanceX", 27, 2, -1, 1, 13.393591))
sketch1.addConstraint(Sketcher.Constraint("DistanceX", 28, 2, -1, 1, 11.55883))
sketch1.addConstraint(Sketcher.Constraint("DistanceX", 29, 2, -1, 1, 12.243911))
sketch1.addConstraint(Sketcher.Constraint("DistanceY", 31, 2, -1, 1, 12.243911))
sketch1.addConstraint(Sketcher.Constraint("DistanceX", 32, 2, -1, 1, 8.397982))
sketch1.addConstraint(Sketcher.Constraint("DistanceY", 32, 2, -1, 1, 11.55883))
sketch1.addConstraint(Sketcher.Constraint("DistanceX", 33, 2, -1, 1, 8.522168))
sketch1.addConstraint(Sketcher.Constraint("DistanceY", 34, 2, -1, 1, 14.209389))
sketch1.addConstraint(Sketcher.Constraint("DistanceX", 36, 2, -1, 1, 4.41508))
sketch1.addConstraint(Sketcher.Constraint("DistanceY", 36, 2, -1, 1, 13.58822))
sketch1.addConstraint(Sketcher.Constraint("DistanceX", 38, 2, -1, 1, 2.49475))
sketch1.addConstraint(Sketcher.Constraint("DistanceY", 38, 2, -1, 1, 15.751229))
sketch1.addConstraint(Sketcher.Constraint("DistanceX", -1, 1, 42, 2, 2.49475))
sketch1.addConstraint(Sketcher.Constraint("DistanceY", 42, 2, -1, 1, 15.751229))
sketch1.addConstraint(Sketcher.Constraint("DistanceX", -1, 1, 44, 2, 4.41508))
sketch1.addConstraint(Sketcher.Constraint("DistanceY", 44, 2, -1, 1, 13.58822))
sketch1.addConstraint(Sketcher.Constraint("DistanceX", -1, 1, 45, 2, 5.826438))
sketch1.addConstraint(Sketcher.Constraint("DistanceY", 46, 2, -1, 1, 14.209389))
sketch1.addConstraint(Sketcher.Constraint("DistanceX", -1, 1, 47, 2, 8.522168))
sketch1.addConstraint(Sketcher.Constraint("DistanceY", 48, 2, -1, 1, 11.55883))
sketch1.addConstraint(Sketcher.Constraint("DistanceY", 49, 2, -1, 1, 12.243911))
sketch1.addConstraint(Sketcher.Constraint("DistanceX", -1, 1, 51, 2, 12.243911))
sketch1.addConstraint(Sketcher.Constraint("DistanceX", -1, 1, 52, 2, 11.55883))
sketch1.addConstraint(Sketcher.Constraint("DistanceY", 52, 2, -1, 1, 8.397982))
sketch1.addConstraint(Sketcher.Constraint("DistanceX", -1, 1, 53, 2, 13.393591))
sketch1.addConstraint(Sketcher.Constraint("DistanceX", -1, 1, 54, 2, 14.209389))
sketch1.addConstraint(Sketcher.Constraint("DistanceX", -1, 1, 56, 2, 13.58822))
sketch1.addConstraint(Sketcher.Constraint("DistanceY", 56, 2, -1, 1, 4.41508))
sketch1.addConstraint(Sketcher.Constraint("DistanceX", -1, 1, 58, 2, 15.751229))
sketch1.addConstraint(Sketcher.Constraint("DistanceY", 58, 2, -1, 1, 2.49475))
sketch1.addConstraint(Sketcher.Constraint("DistanceX", -1, 1, 62, 2, 15.751229))
sketch1.addConstraint(Sketcher.Constraint("DistanceY", -1, 1, 62, 2, 2.49475))
sketch1.addConstraint(Sketcher.Constraint("DistanceX", -1, 1, 64, 2, 13.58822))
sketch1.addConstraint(Sketcher.Constraint("DistanceY", -1, 1, 64, 2, 4.41508))
sketch1.addConstraint(Sketcher.Constraint("DistanceY", -1, 1, 65, 2, 5.826438))
sketch1.addConstraint(Sketcher.Constraint("DistanceX", -1, 1, 66, 2, 14.209389))
sketch1.addConstraint(Sketcher.Constraint("DistanceX", -1, 1, 67, 2, 13.393591))
sketch1.addConstraint(Sketcher.Constraint("DistanceX", -1, 1, 68, 2, 11.55883))
sketch1.addConstraint(Sketcher.Constraint("DistanceX", -1, 1, 69, 2, 12.243911))
sketch1.addConstraint(Sketcher.Constraint("DistanceY", -1, 1, 71, 2, 12.243911))
sketch1.addConstraint(Sketcher.Constraint("DistanceX", -1, 1, 72, 2, 8.397982))
sketch1.addConstraint(Sketcher.Constraint("DistanceY", -1, 1, 72, 2, 11.55883))
sketch1.addConstraint(Sketcher.Constraint("DistanceX", -1, 1, 73, 2, 8.522168))
sketch1.addConstraint(Sketcher.Constraint("DistanceY", -1, 1, 74, 2, 14.209389))
sketch1.addConstraint(Sketcher.Constraint("DistanceX", -1, 1, 76, 2, 4.41508))
sketch1.addConstraint(Sketcher.Constraint("DistanceY", -1, 1, 76, 2, 13.58822))
sketch1.addConstraint(Sketcher.Constraint("DistanceX", -1, 1, 78, 2, 2.49475))
sketch1.addConstraint(Sketcher.Constraint("DistanceY", -1, 1, 78, 2, 15.751229))
sketch1.addConstraint(Sketcher.Constraint("DistanceX", -1, 1, 0, 3, 4.145994))
sketch1.addConstraint(Sketcher.Constraint("DistanceX", 1, 3, -1, 1, 4.145994))
sketch1.addConstraint(Sketcher.Constraint("DistanceX", 4, 3, -1, 1, 0.002976))
sketch1.addConstraint(Sketcher.Constraint("DistanceX", 17, 3, -1, 1, 13.425856))
sketch1.addConstraint(Sketcher.Constraint("DistanceX", 20, 3, -1, 1, 12.769662))
sketch1.addConstraint(Sketcher.Constraint("DistanceX", 21, 3, -1, 1, 12.769662))
sketch1.addConstraint(Sketcher.Constraint("DistanceX", 24, 3, -1, 1, 13.425856))
sketch1.addConstraint(Sketcher.Constraint("DistanceX", 37, 3, -1, 1, 0.002976))
sketch1.addConstraint(Sketcher.Constraint("DistanceX", 40, 3, -1, 1, 4.145994))
sketch1.addConstraint(Sketcher.Constraint("DistanceX", -1, 1, 41, 3, 4.145994))
sketch1.addConstraint(Sketcher.Constraint("DistanceX", -1, 1, 44, 3, 0.002976))
sketch1.addConstraint(Sketcher.Constraint("DistanceX", -1, 1, 57, 3, 13.425856))
sketch1.addConstraint(Sketcher.Constraint("DistanceX", -1, 1, 60, 3, 12.769662))
sketch1.addConstraint(Sketcher.Constraint("DistanceX", -1, 1, 61, 3, 12.769662))
sketch1.addConstraint(Sketcher.Constraint("DistanceX", -1, 1, 64, 3, 13.425856))
sketch1.addConstraint(Sketcher.Constraint("DistanceX", -1, 1, 77, 3, 0.002976))
pad1 = doc.addObject("PartDesign::Pad", "Pad")
body.addObject(pad1)
pad1.Profile = sketch1
pad1.Length = Q("0.5 in")

doc.recompute()
